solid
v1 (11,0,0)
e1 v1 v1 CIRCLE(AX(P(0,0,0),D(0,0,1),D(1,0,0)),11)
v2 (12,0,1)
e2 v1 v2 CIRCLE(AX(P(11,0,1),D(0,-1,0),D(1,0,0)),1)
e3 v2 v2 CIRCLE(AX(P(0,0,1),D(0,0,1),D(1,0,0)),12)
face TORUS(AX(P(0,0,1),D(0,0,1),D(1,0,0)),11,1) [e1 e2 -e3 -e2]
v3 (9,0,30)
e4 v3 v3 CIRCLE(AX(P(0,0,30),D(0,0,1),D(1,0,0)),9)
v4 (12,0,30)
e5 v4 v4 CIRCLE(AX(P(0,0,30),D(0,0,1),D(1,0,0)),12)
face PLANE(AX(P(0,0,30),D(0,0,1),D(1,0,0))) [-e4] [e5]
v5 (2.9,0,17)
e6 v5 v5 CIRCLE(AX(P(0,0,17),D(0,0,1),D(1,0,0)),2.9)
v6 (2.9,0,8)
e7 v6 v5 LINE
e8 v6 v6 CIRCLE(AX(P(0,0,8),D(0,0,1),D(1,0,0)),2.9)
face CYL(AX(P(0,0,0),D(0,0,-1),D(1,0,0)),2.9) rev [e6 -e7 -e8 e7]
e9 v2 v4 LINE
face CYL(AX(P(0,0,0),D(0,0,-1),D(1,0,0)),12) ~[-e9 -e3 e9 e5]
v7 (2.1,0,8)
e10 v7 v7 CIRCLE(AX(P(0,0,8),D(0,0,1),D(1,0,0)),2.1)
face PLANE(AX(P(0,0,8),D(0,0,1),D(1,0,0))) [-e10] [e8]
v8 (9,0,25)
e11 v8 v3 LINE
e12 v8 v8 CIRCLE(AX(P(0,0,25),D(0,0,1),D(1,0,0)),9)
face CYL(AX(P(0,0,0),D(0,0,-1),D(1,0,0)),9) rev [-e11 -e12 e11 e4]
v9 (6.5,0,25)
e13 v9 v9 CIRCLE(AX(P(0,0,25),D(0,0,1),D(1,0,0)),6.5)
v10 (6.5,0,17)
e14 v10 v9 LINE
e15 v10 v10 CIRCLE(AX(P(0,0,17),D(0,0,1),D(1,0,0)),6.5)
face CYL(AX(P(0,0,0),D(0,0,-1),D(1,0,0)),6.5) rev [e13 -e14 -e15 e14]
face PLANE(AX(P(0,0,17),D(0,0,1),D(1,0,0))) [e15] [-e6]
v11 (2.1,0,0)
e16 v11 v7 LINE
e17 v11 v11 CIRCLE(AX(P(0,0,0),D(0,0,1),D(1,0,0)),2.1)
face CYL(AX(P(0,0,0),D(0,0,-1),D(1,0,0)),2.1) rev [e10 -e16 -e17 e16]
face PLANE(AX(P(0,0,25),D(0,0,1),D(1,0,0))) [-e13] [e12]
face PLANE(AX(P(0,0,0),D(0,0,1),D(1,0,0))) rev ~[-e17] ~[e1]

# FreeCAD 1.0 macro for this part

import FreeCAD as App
import Part
import Sketcher


def edges_at(feature, points):
    """Names of the edges that pass closest to the given points."""
    edges = feature.Shape.Edges
    near = lambda p: min(range(len(edges)), key=lambda i: edges[i].distToShape(Part.Vertex(*p))[0])
    return sorted({f"Edge{near(p) + 1}" for p in points})

doc = App.newDocument("Part")
body = doc.addObject("PartDesign::Body", "Body")

sketch1 = doc.addObject("Sketcher::SketchObject", "Sketch")
body.addObject(sketch1)
sketch1.AttachmentSupport = (doc.XY_Plane, [""])
sketch1.MapMode = "FlatFace"
sketch1.addGeometry(Part.Circle(App.Vector(0, 0, 0), App.Vector(0, 0, 1), 12), False)
sketch1.addGeometry(Part.Circle(App.Vector(0, 0, 0), App.Vector(0, 0, 1), 9), False)
sketch1.addConstraint(Sketcher.Constraint("Coincident", 0, 3, -1, 1))
sketch1.addConstraint(Sketcher.Constraint("Coincident", 1, 3, -1, 1))
sketch1.addConstraint(Sketcher.Constraint("Diameter", 0, 24.0))
sketch1.addConstraint(Sketcher.Constraint("Diameter", 1, 18.0))
pad1 = doc.addObject("PartDesign::Pad", "Pad")
body.addObject(pad1)
pad1.Profile = sketch1
pad1.Length = 30

sketch2 = doc.addObject("Sketcher::SketchObject", "Sketch001")
body.addObject(sketch2)
sketch2.AttachmentSupport = (doc.XY_Plane, [""])
sketch2.MapMode = "FlatFace"
sketch2.addGeometry(Part.Circle(App.Vector(0, 0, 0), App.Vector(0, 0, 1), 9), False)
sketch2.addGeometry(Part.Circle(App.Vector(0, 0, 0), App.Vector(0, 0, 1), 6), False)
sketch2.addConstraint(Sketcher.Constraint("Coincident", 0, 3, -1, 1))
sketch2.addConstraint(Sketcher.Constraint("Coincident", 1, 3, -1, 1))
sketch2.addConstraint(Sketcher.Constraint("Diameter", 0, 18.0))
sketch2.addConstraint(Sketcher.Constraint("Diameter", 1, 13.0))
pad2 = doc.addObject("PartDesign::Pad", "Pad001")
body.addObject(pad2)
pad2.Profile = sketch2
pad2.Length = 25

sketch3 = doc.addObject("Sketcher::SketchObject", "Sketch002")
body.addObject(sketch3)
sketch3.AttachmentSupport = (doc.XY_Plane, [""])
sketch3.MapMode = "FlatFace"
sketch3.addGeometry(Part.Circle(App.Vector(0, 0, 0), App.Vector(0, 0, 1), 6.5), False)
sketch3.addGeometry(Part.Circle(App.Vector(0, 0, 0), App.Vector(0, 0, 1), 2.9), False)
sketch3.addConstraint(Sketcher.Constraint("Coincident", 0, 3, -1, 1))
sketch3.addConstraint(Sketcher.Constraint("Coincident", 1, 3, -1, 1))
sketch3.addConstraint(Sketcher.Constraint("Diameter", 0, 13.0))
sketch3.addConstraint(Sketcher.Constraint("Diameter", 1, 5.8))
pad3 = doc.addObject("PartDesign::Pad", "Pad002")
body.addObject(pad3)
pad3.Profile = sketch3
pad3.Length = 17

sketch4 = doc.addObject("Sketcher::SketchObject", "Sketch003")
body.addObject(sketch4)
sketch4.AttachmentSupport = (doc.XY_Plane, [""])
sketch4.MapMode = "FlatFace"
sketch4.addGeometry(Part.Circle(App.Vector(0, 0, 0), App.Vector(0, 0, 1), 2.9), False)
sketch4.addGeometry(Part.Circle(App.Vector(0, 0, 0), App.Vector(0, 0, 1), 2.1), False)
sketch4.addConstraint(Sketcher.Constraint("Coincident", 0, 3, -1, 1))
sketch4.addConstraint(Sketcher.Constraint("Coincident", 1, 3, -1, 1))
sketch4.addConstraint(Sketcher.Constraint("Diameter", 0, 5.8))
sketch4.addConstraint(Sketcher.Constraint("Diameter", 1, 4.2))
pad4 = doc.addObject("PartDesign::Pad", "Pad003")
body.addObject(pad4)
pad4.Profile = sketch4
pad4.Length = 8
doc.recompute()

fillet = doc.addObject("PartDesign::Fillet", "Fillet")
body.addObject(fillet)
fillet.Base = (pad4, edges_at(pad4, [(-12, 0, 0)]))
fillet.Radius = 1

doc.recompute()
